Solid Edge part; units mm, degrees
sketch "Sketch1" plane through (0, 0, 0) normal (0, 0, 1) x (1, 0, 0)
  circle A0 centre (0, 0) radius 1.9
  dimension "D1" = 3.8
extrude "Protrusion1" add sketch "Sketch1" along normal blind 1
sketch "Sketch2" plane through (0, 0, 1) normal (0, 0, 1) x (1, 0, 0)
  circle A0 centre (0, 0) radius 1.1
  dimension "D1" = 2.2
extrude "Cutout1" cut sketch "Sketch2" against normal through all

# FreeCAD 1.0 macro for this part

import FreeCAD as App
import Part
import Sketcher
Q = App.Units.Quantity

doc = App.newDocument("Part")
body = doc.addObject("PartDesign::Body", "Body")

sketch1 = doc.addObject("Sketcher::SketchObject", "Sketch")
body.addObject(sketch1)
sketch1.AttachmentSupport = (doc.XY_Plane, [""])
sketch1.MapMode = "FlatFace"
sketch1.addGeometry(Part.Circle(App.Vector(0, 0, 0), App.Vector(0, 0, 1), 1.9), False)
sketch1.addConstraint(Sketcher.Constraint("Coincident", 0, 3, -1, 1))
sketch1.addConstraint(Sketcher.Constraint("Diameter", 0, Q("3.8 mm")))
pad1 = doc.addObject("PartDesign::Pad", "Pad")
body.addObject(pad1)
pad1.Profile = sketch1
pad1.Length = 1

sketch2 = doc.addObject("Sketcher::SketchObject", "Sketch001")
body.addObject(sketch2)
sketch2.AttachmentSupport = (doc.XY_Plane, [""])
sketch2.MapMode = "FlatFace"
sketch2.AttachmentOffset = App.Placement(App.Vector(0, 0, 1), App.Rotation())
sketch2.addGeometry(Part.Circle(App.Vector(0, 0, 0), App.Vector(0, 0, 1), 1.1), False)
sketch2.addConstraint(Sketcher.Constraint("Coincident", 0, 3, -1, 1))
sketch2.addConstraint(Sketcher.Constraint("Diameter", 0, Q("2.2 mm")))
pocket1 = doc.addObject("PartDesign::Pocket", "Pocket")
body.addObject(pocket1)
pocket1.Profile = sketch2
pocket1.Type = "ThroughAll"

doc.recompute()
